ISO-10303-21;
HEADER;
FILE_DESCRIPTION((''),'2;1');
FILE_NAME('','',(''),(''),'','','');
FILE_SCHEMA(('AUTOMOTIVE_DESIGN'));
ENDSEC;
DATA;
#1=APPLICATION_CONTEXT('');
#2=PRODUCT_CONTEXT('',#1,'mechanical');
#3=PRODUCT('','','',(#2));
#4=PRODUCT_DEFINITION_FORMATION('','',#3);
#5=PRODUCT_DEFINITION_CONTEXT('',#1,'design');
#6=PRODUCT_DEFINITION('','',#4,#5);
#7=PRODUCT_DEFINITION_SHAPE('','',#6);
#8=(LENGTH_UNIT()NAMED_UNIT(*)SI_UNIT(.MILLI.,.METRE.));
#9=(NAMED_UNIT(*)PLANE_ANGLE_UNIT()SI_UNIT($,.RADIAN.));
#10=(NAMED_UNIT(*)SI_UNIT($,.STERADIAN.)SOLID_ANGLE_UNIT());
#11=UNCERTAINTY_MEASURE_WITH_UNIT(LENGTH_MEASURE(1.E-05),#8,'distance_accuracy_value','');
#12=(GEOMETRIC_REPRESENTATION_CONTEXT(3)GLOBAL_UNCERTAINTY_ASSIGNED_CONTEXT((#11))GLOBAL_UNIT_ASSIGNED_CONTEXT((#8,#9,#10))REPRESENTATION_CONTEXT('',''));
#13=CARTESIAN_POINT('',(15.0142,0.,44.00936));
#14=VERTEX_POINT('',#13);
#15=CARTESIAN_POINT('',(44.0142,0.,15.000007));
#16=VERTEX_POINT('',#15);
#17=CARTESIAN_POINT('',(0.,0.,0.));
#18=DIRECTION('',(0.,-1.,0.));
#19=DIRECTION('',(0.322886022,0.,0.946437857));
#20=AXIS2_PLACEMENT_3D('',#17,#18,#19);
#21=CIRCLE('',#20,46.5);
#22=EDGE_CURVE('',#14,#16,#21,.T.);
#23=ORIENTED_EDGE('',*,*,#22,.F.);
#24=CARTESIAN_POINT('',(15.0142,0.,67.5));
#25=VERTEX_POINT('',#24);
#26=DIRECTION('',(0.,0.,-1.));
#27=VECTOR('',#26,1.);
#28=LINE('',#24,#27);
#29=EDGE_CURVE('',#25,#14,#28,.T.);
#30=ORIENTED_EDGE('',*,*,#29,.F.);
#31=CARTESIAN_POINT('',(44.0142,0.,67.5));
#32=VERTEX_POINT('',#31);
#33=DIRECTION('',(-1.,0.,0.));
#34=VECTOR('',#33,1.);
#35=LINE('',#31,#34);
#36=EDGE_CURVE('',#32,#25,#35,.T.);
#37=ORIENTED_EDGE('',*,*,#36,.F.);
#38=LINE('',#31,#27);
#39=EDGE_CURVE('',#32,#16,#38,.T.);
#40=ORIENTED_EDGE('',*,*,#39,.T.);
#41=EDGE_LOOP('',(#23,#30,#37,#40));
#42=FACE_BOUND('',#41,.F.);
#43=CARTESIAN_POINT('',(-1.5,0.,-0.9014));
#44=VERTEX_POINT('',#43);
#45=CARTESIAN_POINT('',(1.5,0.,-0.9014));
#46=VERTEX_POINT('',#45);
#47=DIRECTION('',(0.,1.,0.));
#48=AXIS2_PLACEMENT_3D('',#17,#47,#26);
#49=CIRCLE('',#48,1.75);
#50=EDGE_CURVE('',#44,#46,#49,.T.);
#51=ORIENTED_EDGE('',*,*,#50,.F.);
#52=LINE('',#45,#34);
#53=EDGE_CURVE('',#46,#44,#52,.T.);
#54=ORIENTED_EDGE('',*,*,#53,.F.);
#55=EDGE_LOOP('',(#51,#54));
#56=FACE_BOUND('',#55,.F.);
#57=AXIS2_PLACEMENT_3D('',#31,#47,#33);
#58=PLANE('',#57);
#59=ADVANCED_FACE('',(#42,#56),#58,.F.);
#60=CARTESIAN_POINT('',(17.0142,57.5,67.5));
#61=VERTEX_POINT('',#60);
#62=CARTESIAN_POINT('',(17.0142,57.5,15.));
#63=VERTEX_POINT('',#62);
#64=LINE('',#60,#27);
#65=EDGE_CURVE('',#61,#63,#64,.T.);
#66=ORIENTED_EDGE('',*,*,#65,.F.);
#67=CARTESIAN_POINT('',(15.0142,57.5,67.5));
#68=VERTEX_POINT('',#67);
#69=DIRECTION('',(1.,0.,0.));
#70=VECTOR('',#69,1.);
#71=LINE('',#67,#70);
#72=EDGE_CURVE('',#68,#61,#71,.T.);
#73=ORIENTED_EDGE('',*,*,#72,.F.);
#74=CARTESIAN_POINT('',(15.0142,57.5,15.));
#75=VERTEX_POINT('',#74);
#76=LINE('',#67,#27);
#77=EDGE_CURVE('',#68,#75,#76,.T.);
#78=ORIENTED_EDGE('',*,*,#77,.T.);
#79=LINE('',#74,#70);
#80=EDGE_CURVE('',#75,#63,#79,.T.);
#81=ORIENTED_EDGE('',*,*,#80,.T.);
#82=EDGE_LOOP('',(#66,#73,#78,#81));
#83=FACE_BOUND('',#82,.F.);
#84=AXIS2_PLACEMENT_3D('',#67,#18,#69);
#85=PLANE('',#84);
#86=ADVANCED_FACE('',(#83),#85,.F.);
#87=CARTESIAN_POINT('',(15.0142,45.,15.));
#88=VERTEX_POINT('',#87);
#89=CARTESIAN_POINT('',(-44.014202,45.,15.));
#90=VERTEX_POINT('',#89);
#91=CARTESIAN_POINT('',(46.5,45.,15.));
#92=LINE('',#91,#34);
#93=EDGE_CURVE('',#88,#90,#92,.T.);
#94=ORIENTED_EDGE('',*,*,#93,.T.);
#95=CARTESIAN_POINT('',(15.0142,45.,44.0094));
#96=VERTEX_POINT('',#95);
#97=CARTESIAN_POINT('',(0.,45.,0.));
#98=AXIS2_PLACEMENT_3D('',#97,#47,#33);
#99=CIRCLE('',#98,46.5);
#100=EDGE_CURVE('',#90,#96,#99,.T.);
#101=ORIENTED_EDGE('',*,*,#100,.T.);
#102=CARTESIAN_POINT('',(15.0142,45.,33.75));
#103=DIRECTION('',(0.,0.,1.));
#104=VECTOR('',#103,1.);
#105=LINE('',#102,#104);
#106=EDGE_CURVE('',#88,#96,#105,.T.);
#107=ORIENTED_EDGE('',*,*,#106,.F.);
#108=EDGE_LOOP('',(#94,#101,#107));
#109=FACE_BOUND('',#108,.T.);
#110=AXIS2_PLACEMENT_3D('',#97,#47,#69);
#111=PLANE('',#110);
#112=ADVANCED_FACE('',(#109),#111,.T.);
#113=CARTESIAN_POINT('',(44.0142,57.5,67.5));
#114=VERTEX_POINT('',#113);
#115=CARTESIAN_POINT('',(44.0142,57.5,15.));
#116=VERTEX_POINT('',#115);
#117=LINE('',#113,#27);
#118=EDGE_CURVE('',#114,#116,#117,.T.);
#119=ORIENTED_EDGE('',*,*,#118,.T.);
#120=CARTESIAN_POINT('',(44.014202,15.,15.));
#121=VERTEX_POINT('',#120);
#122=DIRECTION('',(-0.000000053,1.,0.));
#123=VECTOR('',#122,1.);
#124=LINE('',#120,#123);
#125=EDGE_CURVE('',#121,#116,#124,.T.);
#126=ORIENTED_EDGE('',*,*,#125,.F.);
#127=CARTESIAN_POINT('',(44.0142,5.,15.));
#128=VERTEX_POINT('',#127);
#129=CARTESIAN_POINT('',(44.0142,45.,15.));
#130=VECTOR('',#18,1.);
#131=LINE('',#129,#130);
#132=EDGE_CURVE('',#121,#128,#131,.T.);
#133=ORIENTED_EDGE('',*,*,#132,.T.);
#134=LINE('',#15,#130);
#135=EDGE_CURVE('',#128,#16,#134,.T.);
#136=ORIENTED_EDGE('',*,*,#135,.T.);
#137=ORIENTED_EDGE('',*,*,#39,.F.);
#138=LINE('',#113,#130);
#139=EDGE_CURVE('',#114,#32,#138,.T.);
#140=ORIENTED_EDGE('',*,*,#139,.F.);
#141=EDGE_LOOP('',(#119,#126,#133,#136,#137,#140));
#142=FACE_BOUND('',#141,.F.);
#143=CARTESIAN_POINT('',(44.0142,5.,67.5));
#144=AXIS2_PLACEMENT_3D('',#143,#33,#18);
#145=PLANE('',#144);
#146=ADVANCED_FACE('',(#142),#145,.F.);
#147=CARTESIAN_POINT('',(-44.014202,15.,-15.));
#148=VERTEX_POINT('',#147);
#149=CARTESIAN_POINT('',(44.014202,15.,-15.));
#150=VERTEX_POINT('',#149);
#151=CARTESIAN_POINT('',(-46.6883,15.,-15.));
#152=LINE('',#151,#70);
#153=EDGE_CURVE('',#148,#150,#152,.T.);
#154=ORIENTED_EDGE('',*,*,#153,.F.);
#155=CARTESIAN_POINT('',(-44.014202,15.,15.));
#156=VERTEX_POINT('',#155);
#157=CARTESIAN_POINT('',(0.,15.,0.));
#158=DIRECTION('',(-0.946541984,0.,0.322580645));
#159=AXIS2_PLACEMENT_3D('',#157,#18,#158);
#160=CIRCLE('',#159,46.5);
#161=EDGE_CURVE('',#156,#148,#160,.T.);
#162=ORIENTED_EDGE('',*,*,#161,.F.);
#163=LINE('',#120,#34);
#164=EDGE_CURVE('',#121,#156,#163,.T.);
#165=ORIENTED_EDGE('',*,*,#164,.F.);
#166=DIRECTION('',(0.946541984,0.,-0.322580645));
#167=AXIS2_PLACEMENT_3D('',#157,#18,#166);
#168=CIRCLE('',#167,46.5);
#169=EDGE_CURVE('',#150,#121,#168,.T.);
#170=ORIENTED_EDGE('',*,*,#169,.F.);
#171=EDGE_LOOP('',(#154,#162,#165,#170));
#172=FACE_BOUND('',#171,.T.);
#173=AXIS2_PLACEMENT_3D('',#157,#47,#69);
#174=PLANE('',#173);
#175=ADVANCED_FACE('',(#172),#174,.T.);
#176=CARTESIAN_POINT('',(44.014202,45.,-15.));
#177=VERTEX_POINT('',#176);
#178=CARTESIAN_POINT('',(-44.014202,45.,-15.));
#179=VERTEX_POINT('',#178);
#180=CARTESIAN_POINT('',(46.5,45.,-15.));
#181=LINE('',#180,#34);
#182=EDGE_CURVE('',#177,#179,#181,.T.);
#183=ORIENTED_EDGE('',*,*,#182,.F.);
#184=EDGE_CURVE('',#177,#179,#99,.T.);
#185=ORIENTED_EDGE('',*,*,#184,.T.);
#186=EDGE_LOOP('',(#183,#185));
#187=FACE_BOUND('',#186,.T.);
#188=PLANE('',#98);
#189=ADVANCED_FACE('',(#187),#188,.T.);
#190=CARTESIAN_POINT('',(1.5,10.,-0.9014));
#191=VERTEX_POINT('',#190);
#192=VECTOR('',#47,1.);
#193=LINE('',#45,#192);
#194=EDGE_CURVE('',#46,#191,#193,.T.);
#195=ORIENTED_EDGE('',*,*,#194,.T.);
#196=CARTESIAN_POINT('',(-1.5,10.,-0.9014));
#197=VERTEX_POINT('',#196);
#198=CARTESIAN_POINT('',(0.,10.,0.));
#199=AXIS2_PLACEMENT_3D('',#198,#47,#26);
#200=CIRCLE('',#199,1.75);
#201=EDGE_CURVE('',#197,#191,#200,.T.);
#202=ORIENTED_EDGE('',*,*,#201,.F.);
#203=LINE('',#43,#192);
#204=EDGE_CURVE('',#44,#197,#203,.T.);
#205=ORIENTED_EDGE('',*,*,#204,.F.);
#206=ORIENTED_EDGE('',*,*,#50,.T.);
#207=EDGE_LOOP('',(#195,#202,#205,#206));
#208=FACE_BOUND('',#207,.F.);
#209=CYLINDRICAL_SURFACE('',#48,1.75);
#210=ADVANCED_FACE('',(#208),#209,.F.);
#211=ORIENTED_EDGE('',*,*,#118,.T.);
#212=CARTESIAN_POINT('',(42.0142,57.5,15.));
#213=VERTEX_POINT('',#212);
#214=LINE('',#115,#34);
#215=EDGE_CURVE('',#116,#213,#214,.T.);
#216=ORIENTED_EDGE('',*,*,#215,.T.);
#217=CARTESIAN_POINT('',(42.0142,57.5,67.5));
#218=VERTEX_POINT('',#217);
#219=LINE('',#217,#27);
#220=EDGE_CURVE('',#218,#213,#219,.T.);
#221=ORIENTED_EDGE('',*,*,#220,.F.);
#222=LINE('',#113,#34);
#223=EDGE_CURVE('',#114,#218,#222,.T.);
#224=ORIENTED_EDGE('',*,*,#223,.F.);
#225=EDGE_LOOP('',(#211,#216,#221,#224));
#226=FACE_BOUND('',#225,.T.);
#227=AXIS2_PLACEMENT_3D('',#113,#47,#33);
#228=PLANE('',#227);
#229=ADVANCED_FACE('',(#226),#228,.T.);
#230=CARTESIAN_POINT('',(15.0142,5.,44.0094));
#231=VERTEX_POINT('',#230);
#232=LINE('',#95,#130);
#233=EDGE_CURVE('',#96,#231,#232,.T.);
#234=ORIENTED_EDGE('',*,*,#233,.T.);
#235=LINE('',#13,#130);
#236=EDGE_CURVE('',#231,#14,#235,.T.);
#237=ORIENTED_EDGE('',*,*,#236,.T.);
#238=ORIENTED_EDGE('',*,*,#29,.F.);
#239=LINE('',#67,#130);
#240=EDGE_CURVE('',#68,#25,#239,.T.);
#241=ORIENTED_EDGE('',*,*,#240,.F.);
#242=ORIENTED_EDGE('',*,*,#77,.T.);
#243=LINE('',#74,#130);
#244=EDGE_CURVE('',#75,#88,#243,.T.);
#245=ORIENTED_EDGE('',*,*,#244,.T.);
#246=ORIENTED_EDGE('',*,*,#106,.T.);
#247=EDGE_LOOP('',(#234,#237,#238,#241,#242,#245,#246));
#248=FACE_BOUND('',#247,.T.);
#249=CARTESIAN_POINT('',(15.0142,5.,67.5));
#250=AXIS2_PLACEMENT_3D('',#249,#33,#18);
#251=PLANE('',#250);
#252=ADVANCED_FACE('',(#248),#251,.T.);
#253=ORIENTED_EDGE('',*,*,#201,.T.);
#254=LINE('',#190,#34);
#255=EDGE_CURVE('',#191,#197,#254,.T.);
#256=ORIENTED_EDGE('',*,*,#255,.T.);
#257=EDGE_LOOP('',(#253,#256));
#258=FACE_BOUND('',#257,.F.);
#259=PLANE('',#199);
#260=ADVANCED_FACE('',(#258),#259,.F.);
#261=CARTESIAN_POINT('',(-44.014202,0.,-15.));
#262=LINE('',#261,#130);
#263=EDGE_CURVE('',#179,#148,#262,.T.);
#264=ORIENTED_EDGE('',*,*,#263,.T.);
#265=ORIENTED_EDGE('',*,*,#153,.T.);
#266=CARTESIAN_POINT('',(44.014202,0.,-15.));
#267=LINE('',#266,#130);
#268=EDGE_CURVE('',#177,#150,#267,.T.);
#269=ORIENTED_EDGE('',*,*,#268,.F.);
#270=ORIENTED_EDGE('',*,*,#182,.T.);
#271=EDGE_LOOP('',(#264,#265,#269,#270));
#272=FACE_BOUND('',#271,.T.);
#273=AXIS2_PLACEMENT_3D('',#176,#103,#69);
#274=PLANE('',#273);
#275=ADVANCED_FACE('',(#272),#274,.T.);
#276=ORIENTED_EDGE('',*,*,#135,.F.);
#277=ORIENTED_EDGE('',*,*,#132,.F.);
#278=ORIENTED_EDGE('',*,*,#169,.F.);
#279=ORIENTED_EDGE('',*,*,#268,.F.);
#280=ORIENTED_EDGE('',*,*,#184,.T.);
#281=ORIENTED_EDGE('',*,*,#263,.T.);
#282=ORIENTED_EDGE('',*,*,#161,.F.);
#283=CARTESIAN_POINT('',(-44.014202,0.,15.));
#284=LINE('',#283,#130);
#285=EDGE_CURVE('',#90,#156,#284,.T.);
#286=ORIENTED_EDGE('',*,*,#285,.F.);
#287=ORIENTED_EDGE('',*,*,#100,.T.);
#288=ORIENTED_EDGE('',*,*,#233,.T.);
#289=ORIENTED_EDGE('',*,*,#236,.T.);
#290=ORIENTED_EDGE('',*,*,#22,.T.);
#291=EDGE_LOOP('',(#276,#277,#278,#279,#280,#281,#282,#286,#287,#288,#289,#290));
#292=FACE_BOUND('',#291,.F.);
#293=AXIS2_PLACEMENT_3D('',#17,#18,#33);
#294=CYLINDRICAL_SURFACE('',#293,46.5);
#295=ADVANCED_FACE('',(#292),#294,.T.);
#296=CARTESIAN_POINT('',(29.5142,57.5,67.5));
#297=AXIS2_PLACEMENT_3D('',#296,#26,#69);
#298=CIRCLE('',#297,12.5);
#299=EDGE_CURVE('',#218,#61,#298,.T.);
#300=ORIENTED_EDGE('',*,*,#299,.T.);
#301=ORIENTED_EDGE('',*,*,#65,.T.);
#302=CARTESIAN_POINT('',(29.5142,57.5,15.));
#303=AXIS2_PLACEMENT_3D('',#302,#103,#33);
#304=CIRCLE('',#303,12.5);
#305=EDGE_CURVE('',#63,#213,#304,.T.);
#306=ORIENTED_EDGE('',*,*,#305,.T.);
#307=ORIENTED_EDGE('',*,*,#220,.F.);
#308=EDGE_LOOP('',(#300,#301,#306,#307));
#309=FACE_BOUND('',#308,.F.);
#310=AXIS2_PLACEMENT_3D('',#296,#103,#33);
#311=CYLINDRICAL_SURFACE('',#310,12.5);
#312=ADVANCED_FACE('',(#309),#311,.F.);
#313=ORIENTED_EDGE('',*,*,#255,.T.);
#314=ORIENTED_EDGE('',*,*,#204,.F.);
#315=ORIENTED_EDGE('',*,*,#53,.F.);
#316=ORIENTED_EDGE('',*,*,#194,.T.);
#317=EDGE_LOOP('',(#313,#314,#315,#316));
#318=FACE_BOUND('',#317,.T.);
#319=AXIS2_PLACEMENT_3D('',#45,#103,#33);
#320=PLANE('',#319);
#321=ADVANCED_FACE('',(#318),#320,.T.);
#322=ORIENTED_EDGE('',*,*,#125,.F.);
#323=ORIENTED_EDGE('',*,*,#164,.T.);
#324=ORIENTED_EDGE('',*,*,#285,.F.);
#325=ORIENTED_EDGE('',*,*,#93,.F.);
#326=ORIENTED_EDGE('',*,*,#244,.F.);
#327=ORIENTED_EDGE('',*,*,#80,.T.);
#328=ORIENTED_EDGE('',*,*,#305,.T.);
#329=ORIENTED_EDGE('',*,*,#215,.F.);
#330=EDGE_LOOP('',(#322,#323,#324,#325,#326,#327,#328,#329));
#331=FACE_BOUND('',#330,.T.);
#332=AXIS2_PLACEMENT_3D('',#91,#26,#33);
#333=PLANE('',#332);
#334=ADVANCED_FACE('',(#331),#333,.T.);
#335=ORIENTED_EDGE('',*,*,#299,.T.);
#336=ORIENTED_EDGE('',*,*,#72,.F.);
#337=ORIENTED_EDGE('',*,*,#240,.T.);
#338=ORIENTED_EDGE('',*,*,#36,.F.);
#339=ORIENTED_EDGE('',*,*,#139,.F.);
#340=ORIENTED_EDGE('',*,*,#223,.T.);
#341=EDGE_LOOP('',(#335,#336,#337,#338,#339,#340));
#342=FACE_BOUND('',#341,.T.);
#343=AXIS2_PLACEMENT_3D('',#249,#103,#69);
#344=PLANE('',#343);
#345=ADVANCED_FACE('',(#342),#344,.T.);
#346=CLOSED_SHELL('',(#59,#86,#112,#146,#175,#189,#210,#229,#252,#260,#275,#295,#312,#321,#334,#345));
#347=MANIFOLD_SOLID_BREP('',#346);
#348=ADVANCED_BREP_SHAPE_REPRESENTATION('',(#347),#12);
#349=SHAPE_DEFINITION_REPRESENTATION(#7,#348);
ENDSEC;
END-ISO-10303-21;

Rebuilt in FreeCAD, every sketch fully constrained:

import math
import FreeCAD as App
import Part
import Sketcher

V = App.Vector
Q = App.Units.Quantity


def add_polygon(sketch, points):
    """Adds a closed chain of lines whose ends are joined by coincident constraints."""
    first, n = sketch.GeometryCount, len(points)
    for a, b in zip(points, points[1:] + points[:1]):
        sketch.addGeometry(Part.LineSegment(App.Vector(*a, 0), App.Vector(*b, 0)), False)
    for i in range(n):
        sketch.addConstraint(Sketcher.Constraint("Coincident", first + i, 2, first + (i + 1) % n, 1))

doc = App.newDocument("Part")
body = doc.addObject("PartDesign::Body", "Body")

# Sketch on XZ plane
sketch1 = body.newObject("Sketcher::SketchObject", "Sketch")
sketch1.AttachmentSupport = (doc.getObject("XZ_Plane"), [""])
sketch1.MapMode = "FlatFace"
sketch1.addGeometry(Part.Circle(V(0, 0, 0), V(0, 0, 1), 46), False)
sketch1.addConstraint([
    Sketcher.Constraint("Coincident", 0, 3, -1, 1),
    Sketcher.Constraint("Diameter", 0, Q("93 mm")),
])
pad1 = body.newObject("PartDesign::Pad", "Pad")
pad1.Profile = sketch1
pad1.Length = 45
pad1.Reversed = True

# Sketch on XZ plane
sketch2 = body.newObject("Sketcher::SketchObject", "Sketch001")
sketch2.AttachmentSupport = (doc.getObject("XZ_Plane"), [""])
sketch2.MapMode = "FlatFace"
sketch2.AttachmentOffset = App.Placement(V(0, 0, -45), App.Rotation())
add_polygon(sketch2, [(46, 15), (46, -15), (-47, -15), (-47, 15)])  # lines 0-3
sketch2.addConstraint([
    Sketcher.Constraint("Vertical", 0),
    Sketcher.Constraint("Horizontal", 1),
    Sketcher.Constraint("Vertical", 2),
    Sketcher.Constraint("Horizontal", 3),
    Sketcher.Constraint("DistanceY", 0, 2, 0, 1, Q("30 mm")),
    Sketcher.Constraint("DistanceY", 0, 2, -1, 1, Q("15 mm")),
    Sketcher.Constraint("DistanceX", -1, 1, 0, 2, Q("46.5 mm")),
    Sketcher.Constraint("DistanceX", 1, 2, 1, 1, Q("93.1883 mm")),
])
pocket1 = body.newObject("PartDesign::Pocket", "Pocket")
pocket1.Profile = sketch2
pocket1.Length = 30
pocket1.Reversed = True

# Sketch on XZ plane
sketch3 = body.newObject("Sketcher::SketchObject", "Sketch002")
sketch3.AttachmentSupport = (doc.getObject("XZ_Plane"), [""])
sketch3.MapMode = "FlatFace"
sketch3.addGeometry(Part.Circle(V(0, 0, 0), V(0, 0, 1), 1.8), False)
sketch3.addConstraint([
    Sketcher.Constraint("Coincident", 0, 3, -1, 1),
    Sketcher.Constraint("Diameter", 0, Q("3.5 mm")),
])
doc.recompute()
hole = body.newObject("PartDesign::Hole", "Hole")
hole.Profile = sketch3
hole.ThreadType = "None"
hole.Diameter = 3.5
hole.DepthType = "Dimension"
hole.Depth = 10
hole.DrillPoint = "Flat"

# Sketch on XZ plane
sketch4 = body.newObject("Sketcher::SketchObject", "Sketch003")
sketch4.AttachmentSupport = (doc.getObject("XZ_Plane"), [""])
sketch4.MapMode = "FlatFace"
sketch4.addGeometry([
    Part.ArcOfCircle(Part.Circle(V(0, 0, 0), V(0, 0, 1), 1.8), math.radians(-149), math.radians(-31)),
    Part.LineSegment(V(1.5, -0.9, 0), V(-1.5, -0.9, 0)),
], False)
sketch4.addConstraint([
    Sketcher.Constraint("Coincident", 0, 1, 1, 2),
    Sketcher.Constraint("Coincident", 1, 1, 0, 2),
    Sketcher.Constraint("Horizontal", 1),
    Sketcher.Constraint("Coincident", 0, 3, -1, 1),
    Sketcher.Constraint("DistanceX", 1, 2, 1, 1, Q("3 mm")),
    Sketcher.Constraint("Radius", 0, Q("1.75 mm")),
])
pad2 = body.newObject("PartDesign::Pad", "Pad001")
pad2.Profile = sketch4
pad2.Length = 10
pad2.Reversed = True

# Sketch on XZ plane
sketch5 = body.newObject("Sketcher::SketchObject", "Sketch004")
sketch5.AttachmentSupport = (doc.getObject("XZ_Plane"), [""])
sketch5.MapMode = "FlatFace"
sketch5.AttachmentOffset = App.Placement(V(0, 0, -45), App.Rotation())
sketch5.addGeometry([
    Part.ArcOfCircle(Part.Circle(V(0, 0, 0), V(0, 0, 1), 46), math.radians(19), math.radians(71)),
    Part.LineSegment(V(15, 44, 0), V(15, 68, 0)),
    Part.LineSegment(V(15, 68, 0), V(44, 68, 0)),
    Part.LineSegment(V(44, 68, 0), V(44, 15, 0)),
], False)
sketch5.addConstraint([
    Sketcher.Constraint("Coincident", 0, 2, 1, 1),
    Sketcher.Constraint("Coincident", 1, 2, 2, 1),
    Sketcher.Constraint("Coincident", 2, 2, 3, 1),
    Sketcher.Constraint("Coincident", 3, 2, 0, 1),
    Sketcher.Constraint("Vertical", 1),
    Sketcher.Constraint("Horizontal", 2),
    Sketcher.Constraint("Vertical", 3),
    Sketcher.Constraint("Coincident", 0, 3, -1, 1),
    Sketcher.Constraint("Radius", 0, Q("46.5 mm")),
    Sketcher.Constraint("DistanceX", 2, 1, 2, 2, Q("29 mm")),
    Sketcher.Constraint("DistanceY", 3, 2, 3, 1, Q("52.5 mm")),
    Sketcher.Constraint("DistanceY", -1, 1, 3, 2, Q("15 mm")),
])
pad3 = body.newObject("PartDesign::Pad", "Pad002")
pad3.Profile = sketch5
pad3.Length = 40

# Sketch on XY plane
sketch6 = body.newObject("Sketcher::SketchObject", "Sketch005")
sketch6.AttachmentSupport = (doc.getObject("XY_Plane"), [""])
sketch6.MapMode = "FlatFace"
sketch6.AttachmentOffset = App.Placement(V(0, 0, 67.5), App.Rotation())
sketch6.addGeometry([
    Part.LineSegment(V(44, 5, 0), V(44, 57.5, 0)),  # 0
    Part.LineSegment(V(44, 57.5, 0), V(42, 57.5, 0)),  # 1
    Part.ArcOfCircle(Part.Circle(V(29.5, 57.5, 0), V(0, 0, 1), 12.5), math.radians(180), math.radians(360)),  # 2
    Part.LineSegment(V(17, 57.5, 0), V(15, 57.5, 0)),  # 3
    Part.LineSegment(V(15, 57.5, 0), V(15, 5, 0)),  # 4
    Part.LineSegment(V(15, 5, 0), V(44, 5, 0)),  # 5
], False)
sketch6.addConstraint([
    Sketcher.Constraint("Coincident", 0, 2, 1, 1),
    Sketcher.Constraint("Coincident", 1, 2, 2, 2),
    Sketcher.Constraint("Coincident", 2, 1, 3, 1),
    Sketcher.Constraint("Coincident", 3, 2, 4, 1),
    Sketcher.Constraint("Coincident", 4, 2, 5, 1),
    Sketcher.Constraint("Coincident", 5, 2, 0, 1),
    Sketcher.Constraint("Vertical", 0),
    Sketcher.Constraint("Horizontal", 1),
    Sketcher.Constraint("Horizontal", 3),
    Sketcher.Constraint("Vertical", 4),
    Sketcher.Constraint("Horizontal", 5),
    Sketcher.Constraint("Horizontal", 2, 3, 0, 2),
    Sketcher.Constraint("Horizontal", 1, 2, 2, 1),
    Sketcher.Constraint("Equal", 1, 3),
    Sketcher.Constraint("Radius", 2, Q("12.5 mm")),
    Sketcher.Constraint("DistanceX", 1, 2, 1, 1, Q("2 mm")),
    Sketcher.Constraint("DistanceY", 0, 1, 0, 2, Q("52.5 mm")),
    Sketcher.Constraint("DistanceY", -1, 1, 4, 2, Q("5 mm")),
    Sketcher.Constraint("DistanceX", -1, 1, 2, 3, Q("29.5142 mm")),
])
pad4 = body.newObject("PartDesign::Pad", "Pad003")
pad4.Profile = sketch6
pad4.Length = 52.5
pad4.Reversed = True

# Sketch on XY plane
sketch7 = body.newObject("Sketcher::SketchObject", "Sketch006")
sketch7.AttachmentSupport = (doc.getObject("XY_Plane"), [""])
sketch7.MapMode = "FlatFace"
sketch7.AttachmentOffset = App.Placement(V(0, 0, 67.5), App.Rotation())
add_polygon(sketch7, [(44, 5), (15, 5), (15, 0), (44, 0)])  # lines 0-3
sketch7.addConstraint([
    Sketcher.Constraint("Horizontal", 0),
    Sketcher.Constraint("Vertical", 1),
    Sketcher.Constraint("Horizontal", 2),
    Sketcher.Constraint("Vertical", 3),
    Sketcher.Constraint("PointOnObject", 1, 2, -1),
    Sketcher.Constraint("DistanceX", 0, 2, 0, 1, Q("29 mm")),
    Sketcher.Constraint("DistanceY", 1, 2, 1, 1, Q("5 mm")),
    Sketcher.Constraint("DistanceX", -1, 1, 0, 2, Q("15.0142 mm")),
])
pad5 = body.newObject("PartDesign::Pad", "Pad004")
pad5.Profile = sketch7
pad5.Length = 70
pad5.Reversed = True

doc.recompute()
